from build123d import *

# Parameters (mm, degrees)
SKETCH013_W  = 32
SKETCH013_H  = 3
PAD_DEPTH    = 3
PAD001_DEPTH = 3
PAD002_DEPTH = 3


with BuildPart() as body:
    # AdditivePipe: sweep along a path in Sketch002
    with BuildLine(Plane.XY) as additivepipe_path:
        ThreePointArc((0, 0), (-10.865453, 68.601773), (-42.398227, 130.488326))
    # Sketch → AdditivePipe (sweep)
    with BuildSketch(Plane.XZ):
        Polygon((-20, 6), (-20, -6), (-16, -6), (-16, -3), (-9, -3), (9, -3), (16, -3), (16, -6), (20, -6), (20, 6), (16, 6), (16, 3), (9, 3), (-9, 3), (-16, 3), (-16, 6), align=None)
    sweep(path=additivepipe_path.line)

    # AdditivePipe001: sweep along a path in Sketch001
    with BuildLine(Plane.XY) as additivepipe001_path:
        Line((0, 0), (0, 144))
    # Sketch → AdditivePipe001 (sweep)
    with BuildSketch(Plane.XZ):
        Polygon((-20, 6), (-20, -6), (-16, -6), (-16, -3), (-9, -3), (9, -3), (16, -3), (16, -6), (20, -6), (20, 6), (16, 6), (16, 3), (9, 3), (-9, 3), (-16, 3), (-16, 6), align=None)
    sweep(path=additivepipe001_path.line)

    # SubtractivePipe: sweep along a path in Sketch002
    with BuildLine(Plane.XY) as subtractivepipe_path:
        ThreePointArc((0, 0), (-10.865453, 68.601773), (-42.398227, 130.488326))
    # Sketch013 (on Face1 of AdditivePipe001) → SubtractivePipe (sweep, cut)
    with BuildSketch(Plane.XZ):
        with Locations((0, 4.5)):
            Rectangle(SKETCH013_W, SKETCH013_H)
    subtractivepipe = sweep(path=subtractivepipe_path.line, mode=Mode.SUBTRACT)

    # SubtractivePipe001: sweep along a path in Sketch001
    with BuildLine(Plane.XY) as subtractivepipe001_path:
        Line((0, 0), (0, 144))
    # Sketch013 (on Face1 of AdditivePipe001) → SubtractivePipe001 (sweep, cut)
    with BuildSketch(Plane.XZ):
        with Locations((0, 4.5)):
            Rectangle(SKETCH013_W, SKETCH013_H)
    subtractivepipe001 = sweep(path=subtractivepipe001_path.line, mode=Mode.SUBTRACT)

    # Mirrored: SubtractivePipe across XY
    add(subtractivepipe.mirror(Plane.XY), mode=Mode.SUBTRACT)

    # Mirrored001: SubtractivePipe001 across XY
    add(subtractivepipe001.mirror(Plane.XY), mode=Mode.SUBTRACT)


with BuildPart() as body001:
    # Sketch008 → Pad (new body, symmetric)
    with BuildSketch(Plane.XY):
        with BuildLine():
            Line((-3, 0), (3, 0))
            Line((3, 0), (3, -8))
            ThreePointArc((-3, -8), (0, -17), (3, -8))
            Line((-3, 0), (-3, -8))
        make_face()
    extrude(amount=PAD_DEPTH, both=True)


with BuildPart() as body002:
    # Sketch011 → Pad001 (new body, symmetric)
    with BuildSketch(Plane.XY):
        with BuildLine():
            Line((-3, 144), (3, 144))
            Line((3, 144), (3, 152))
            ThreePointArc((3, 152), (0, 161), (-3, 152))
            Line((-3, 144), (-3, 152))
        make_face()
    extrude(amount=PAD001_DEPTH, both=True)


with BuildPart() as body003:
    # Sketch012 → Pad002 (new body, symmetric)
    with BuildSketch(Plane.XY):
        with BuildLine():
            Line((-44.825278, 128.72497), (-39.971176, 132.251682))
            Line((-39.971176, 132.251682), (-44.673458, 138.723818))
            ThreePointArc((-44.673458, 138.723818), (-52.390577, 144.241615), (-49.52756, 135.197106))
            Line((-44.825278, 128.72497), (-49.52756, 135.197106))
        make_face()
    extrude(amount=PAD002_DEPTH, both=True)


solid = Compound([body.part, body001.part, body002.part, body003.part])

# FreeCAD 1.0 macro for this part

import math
import FreeCAD as App
import Part
import Sketcher
from FreeCAD import Vector
Q = App.Units.Quantity

doc = App.newDocument("Part")
body = doc.addObject("PartDesign::Body", "Body")

sketch1 = doc.addObject("Sketcher::SketchObject", "Sketch")
body.addObject(sketch1)
sketch1.AttachmentSupport = (doc.XZ_Plane, [""])
sketch1.MapMode = "FlatFace"
sketch1.addGeometry(Part.LineSegment(Vector(-20, 6, 0), Vector(-20, -6, 0)), False)
sketch1.addGeometry(Part.LineSegment(Vector(-20, -6, 0), Vector(-16, -6, 0)), False)
sketch1.addGeometry(Part.LineSegment(Vector(-16, -6, 0), Vector(-16, -3, 0)), False)
sketch1.addGeometry(Part.LineSegment(Vector(-16, -3, 0), Vector(16, -3, 0)), False)
sketch1.addGeometry(Part.LineSegment(Vector(16, -3, 0), Vector(16, -6, 0)), False)
sketch1.addGeometry(Part.LineSegment(Vector(16, -6, 0), Vector(20, -6, 0)), False)
sketch1.addGeometry(Part.LineSegment(Vector(20, -6, 0), Vector(20, 6, 0)), False)
sketch1.addGeometry(Part.LineSegment(Vector(20, 6, 0), Vector(16, 6, 0)), False)
sketch1.addGeometry(Part.LineSegment(Vector(16, 6, 0), Vector(16, 3, 0)), False)
sketch1.addGeometry(Part.LineSegment(Vector(16, 3, 0), Vector(-16, 3, 0)), False)
sketch1.addGeometry(Part.LineSegment(Vector(-16, 3, 0), Vector(-16, 6, 0)), False)
sketch1.addGeometry(Part.LineSegment(Vector(-16, 6, 0), Vector(-20, 6, 0)), False)
sketch1.addConstraint(Sketcher.Constraint("Coincident", 0, 2, 1, 1))
sketch1.addConstraint(Sketcher.Constraint("Coincident", 1, 2, 2, 1))
sketch1.addConstraint(Sketcher.Constraint("Coincident", 2, 2, 3, 1))
sketch1.addConstraint(Sketcher.Constraint("Coincident", 3, 2, 4, 1))
sketch1.addConstraint(Sketcher.Constraint("Coincident", 4, 2, 5, 1))
sketch1.addConstraint(Sketcher.Constraint("Coincident", 5, 2, 6, 1))
sketch1.addConstraint(Sketcher.Constraint("Coincident", 6, 2, 7, 1))
sketch1.addConstraint(Sketcher.Constraint("Coincident", 7, 2, 8, 1))
sketch1.addConstraint(Sketcher.Constraint("Coincident", 8, 2, 9, 1))
sketch1.addConstraint(Sketcher.Constraint("Coincident", 9, 2, 10, 1))
sketch1.addConstraint(Sketcher.Constraint("Coincident", 10, 2, 11, 1))
sketch1.addConstraint(Sketcher.Constraint("Coincident", 11, 2, 0, 1))
sketch1.addConstraint(Sketcher.Constraint("Vertical", 0))
sketch1.addConstraint(Sketcher.Constraint("Horizontal", 1))
sketch1.addConstraint(Sketcher.Constraint("Vertical", 2))
sketch1.addConstraint(Sketcher.Constraint("Horizontal", 3))
sketch1.addConstraint(Sketcher.Constraint("Vertical", 4))
sketch1.addConstraint(Sketcher.Constraint("Horizontal", 5))
sketch1.addConstraint(Sketcher.Constraint("Vertical", 6))
sketch1.addConstraint(Sketcher.Constraint("Horizontal", 7))
sketch1.addConstraint(Sketcher.Constraint("Vertical", 8))
sketch1.addConstraint(Sketcher.Constraint("Horizontal", 9))
sketch1.addConstraint(Sketcher.Constraint("Vertical", 10))
sketch1.addConstraint(Sketcher.Constraint("Horizontal", 11))
sketch1.addConstraint(Sketcher.Constraint("Symmetric", 0, 2, 6, 2, -1, 1))
sketch1.addConstraint(Sketcher.Constraint("Symmetric", 2, 2, 8, 2, -1, 1))
sketch1.addConstraint(Sketcher.Constraint("Symmetric", 4, 2, 10, 2, -1, 1))
sketch1.addConstraint(Sketcher.Constraint("Symmetric", 1, 2, 4, 2, -2))
sketch1.addConstraint(Sketcher.Constraint("DistanceX", 1, 1, 1, 2, 4.0))
sketch1.addConstraint(Sketcher.Constraint("DistanceX", 3, 1, 3, 2, 32.0))
sketch1.addConstraint(Sketcher.Constraint("DistanceY", 0, 2, 0, 1, 12.0))
sketch1.addConstraint(Sketcher.Constraint("DistanceY", 2, 1, 2, 2, 3.0))

sketch2 = doc.addObject("Sketcher::SketchObject", "Sketch001")
body.addObject(sketch2)
sketch2.AttachmentSupport = (doc.XY_Plane, [""])
sketch2.MapMode = "FlatFace"
sketch2.addGeometry(Part.ArcOfCircle(Part.Circle(Vector(-221.999993, 0.000002, 0), Vector(0, 0, 1), 221.999993), math.radians(-0.000001), math.radians(36)), False)
sketch2.addConstraint(Sketcher.Constraint("Coincident", 0, 1, -1, 1))
sketch2.addConstraint(Sketcher.Constraint("Radius", 0, 221.999993))
sketch2.addConstraint(Sketcher.Constraint("DistanceX", 0, 2, -1, 1, 42.398227))
sketch2.addConstraint(Sketcher.Constraint("DistanceY", -1, 1, 0, 2, 130.488326))
doc.recompute()

additivepipe = doc.addObject("PartDesign::AdditivePipe", "AdditivePipe")
body.addObject(additivepipe)
additivepipe.Profile = sketch1
additivepipe.Spine = (sketch2, ["Edge1"])

sketch3 = doc.addObject("Sketcher::SketchObject", "Sketch002")
body.addObject(sketch3)
sketch3.AttachmentSupport = (doc.XZ_Plane, [""])
sketch3.MapMode = "FlatFace"
sketch3.addGeometry(Part.LineSegment(Vector(-20, 6, 0), Vector(-20, -6, 0)), False)
sketch3.addGeometry(Part.LineSegment(Vector(-20, -6, 0), Vector(-16, -6, 0)), False)
sketch3.addGeometry(Part.LineSegment(Vector(-16, -6, 0), Vector(-16, -3, 0)), False)
sketch3.addGeometry(Part.LineSegment(Vector(-16, -3, 0), Vector(16, -3, 0)), False)
sketch3.addGeometry(Part.LineSegment(Vector(16, -3, 0), Vector(16, -6, 0)), False)
sketch3.addGeometry(Part.LineSegment(Vector(16, -6, 0), Vector(20, -6, 0)), False)
sketch3.addGeometry(Part.LineSegment(Vector(20, -6, 0), Vector(20, 6, 0)), False)
sketch3.addGeometry(Part.LineSegment(Vector(20, 6, 0), Vector(16, 6, 0)), False)
sketch3.addGeometry(Part.LineSegment(Vector(16, 6, 0), Vector(16, 3, 0)), False)
sketch3.addGeometry(Part.LineSegment(Vector(16, 3, 0), Vector(-16, 3, 0)), False)
sketch3.addGeometry(Part.LineSegment(Vector(-16, 3, 0), Vector(-16, 6, 0)), False)
sketch3.addGeometry(Part.LineSegment(Vector(-16, 6, 0), Vector(-20, 6, 0)), False)
sketch3.addConstraint(Sketcher.Constraint("Coincident", 0, 2, 1, 1))
sketch3.addConstraint(Sketcher.Constraint("Coincident", 1, 2, 2, 1))
sketch3.addConstraint(Sketcher.Constraint("Coincident", 2, 2, 3, 1))
sketch3.addConstraint(Sketcher.Constraint("Coincident", 3, 2, 4, 1))
sketch3.addConstraint(Sketcher.Constraint("Coincident", 4, 2, 5, 1))
sketch3.addConstraint(Sketcher.Constraint("Coincident", 5, 2, 6, 1))
sketch3.addConstraint(Sketcher.Constraint("Coincident", 6, 2, 7, 1))
sketch3.addConstraint(Sketcher.Constraint("Coincident", 7, 2, 8, 1))
sketch3.addConstraint(Sketcher.Constraint("Coincident", 8, 2, 9, 1))
sketch3.addConstraint(Sketcher.Constraint("Coincident", 9, 2, 10, 1))
sketch3.addConstraint(Sketcher.Constraint("Coincident", 10, 2, 11, 1))
sketch3.addConstraint(Sketcher.Constraint("Coincident", 11, 2, 0, 1))
sketch3.addConstraint(Sketcher.Constraint("Vertical", 0))
sketch3.addConstraint(Sketcher.Constraint("Horizontal", 1))
sketch3.addConstraint(Sketcher.Constraint("Vertical", 2))
sketch3.addConstraint(Sketcher.Constraint("Horizontal", 3))
sketch3.addConstraint(Sketcher.Constraint("Vertical", 4))
sketch3.addConstraint(Sketcher.Constraint("Horizontal", 5))
sketch3.addConstraint(Sketcher.Constraint("Vertical", 6))
sketch3.addConstraint(Sketcher.Constraint("Horizontal", 7))
sketch3.addConstraint(Sketcher.Constraint("Vertical", 8))
sketch3.addConstraint(Sketcher.Constraint("Horizontal", 9))
sketch3.addConstraint(Sketcher.Constraint("Vertical", 10))
sketch3.addConstraint(Sketcher.Constraint("Horizontal", 11))
sketch3.addConstraint(Sketcher.Constraint("Symmetric", 0, 2, 6, 2, -1, 1))
sketch3.addConstraint(Sketcher.Constraint("Symmetric", 2, 2, 8, 2, -1, 1))
sketch3.addConstraint(Sketcher.Constraint("Symmetric", 4, 2, 10, 2, -1, 1))
sketch3.addConstraint(Sketcher.Constraint("Symmetric", 1, 2, 4, 2, -2))
sketch3.addConstraint(Sketcher.Constraint("DistanceX", 1, 1, 1, 2, 4.0))
sketch3.addConstraint(Sketcher.Constraint("DistanceX", 3, 1, 3, 2, 32.0))
sketch3.addConstraint(Sketcher.Constraint("DistanceY", 0, 2, 0, 1, 12.0))
sketch3.addConstraint(Sketcher.Constraint("DistanceY", 2, 1, 2, 2, 3.0))

sketch4 = doc.addObject("Sketcher::SketchObject", "Sketch003")
body.addObject(sketch4)
sketch4.AttachmentSupport = (doc.XY_Plane, [""])
sketch4.MapMode = "FlatFace"
sketch4.addGeometry(Part.LineSegment(Vector(0, 0, 0), Vector(0, 144, 0)), False)
sketch4.addConstraint(Sketcher.Constraint("Vertical", 0))
sketch4.addConstraint(Sketcher.Constraint("Coincident", 0, 1, -1, 1))
sketch4.addConstraint(Sketcher.Constraint("DistanceY", 0, 1, 0, 2, 144.0))
doc.recompute()

additivepipe2 = doc.addObject("PartDesign::AdditivePipe", "AdditivePipe001")
body.addObject(additivepipe2)
additivepipe2.Profile = sketch3
additivepipe2.Spine = (sketch4, ["Edge1"])

sketch5 = doc.addObject("Sketcher::SketchObject", "Sketch004")
body.addObject(sketch5)
sketch5.AttachmentSupport = (doc.XZ_Plane, [""])
sketch5.MapMode = "FlatFace"
sketch5.addGeometry(Part.LineSegment(Vector(-16, 6, 0), Vector(-16, 3, 0)), False)
sketch5.addGeometry(Part.LineSegment(Vector(-16, 3, 0), Vector(16, 3, 0)), False)
sketch5.addGeometry(Part.LineSegment(Vector(16, 3, 0), Vector(16, 6, 0)), False)
sketch5.addGeometry(Part.LineSegment(Vector(16, 6, 0), Vector(-16, 6, 0)), False)
sketch5.addConstraint(Sketcher.Constraint("Coincident", 0, 2, 1, 1))
sketch5.addConstraint(Sketcher.Constraint("Coincident", 1, 2, 2, 1))
sketch5.addConstraint(Sketcher.Constraint("Coincident", 2, 2, 3, 1))
sketch5.addConstraint(Sketcher.Constraint("Coincident", 3, 2, 0, 1))
sketch5.addConstraint(Sketcher.Constraint("Vertical", 0))
sketch5.addConstraint(Sketcher.Constraint("Horizontal", 1))
sketch5.addConstraint(Sketcher.Constraint("Vertical", 2))
sketch5.addConstraint(Sketcher.Constraint("Horizontal", 3))
sketch5.addConstraint(Sketcher.Constraint("DistanceX", 1, 1, 1, 2, 32.0))
sketch5.addConstraint(Sketcher.Constraint("DistanceY", 0, 2, 0, 1, 3.0))
sketch5.addConstraint(Sketcher.Constraint("DistanceX", 0, 2, -1, 1, 16.0))
sketch5.addConstraint(Sketcher.Constraint("DistanceY", -1, 1, 0, 2, 3.0))

sketch6 = doc.addObject("Sketcher::SketchObject", "Sketch005")
body.addObject(sketch6)
sketch6.AttachmentSupport = (doc.XY_Plane, [""])
sketch6.MapMode = "FlatFace"
sketch6.addGeometry(Part.ArcOfCircle(Part.Circle(Vector(-221.999993, 0.000002, 0), Vector(0, 0, 1), 221.999993), math.radians(-0.000001), math.radians(36)), False)
sketch6.addConstraint(Sketcher.Constraint("Coincident", 0, 1, -1, 1))
sketch6.addConstraint(Sketcher.Constraint("Radius", 0, 221.999993))
sketch6.addConstraint(Sketcher.Constraint("DistanceX", 0, 2, -1, 1, 42.398227))
sketch6.addConstraint(Sketcher.Constraint("DistanceY", -1, 1, 0, 2, 130.488326))
doc.recompute()

subtractivepipe = doc.addObject("PartDesign::SubtractivePipe", "SubtractivePipe")
body.addObject(subtractivepipe)
subtractivepipe.Profile = sketch5
subtractivepipe.Spine = (sketch6, ["Edge1"])

sketch7 = doc.addObject("Sketcher::SketchObject", "Sketch006")
body.addObject(sketch7)
sketch7.AttachmentSupport = (doc.XZ_Plane, [""])
sketch7.MapMode = "FlatFace"
sketch7.addGeometry(Part.LineSegment(Vector(-16, 6, 0), Vector(-16, 3, 0)), False)
sketch7.addGeometry(Part.LineSegment(Vector(-16, 3, 0), Vector(16, 3, 0)), False)
sketch7.addGeometry(Part.LineSegment(Vector(16, 3, 0), Vector(16, 6, 0)), False)
sketch7.addGeometry(Part.LineSegment(Vector(16, 6, 0), Vector(-16, 6, 0)), False)
sketch7.addConstraint(Sketcher.Constraint("Coincident", 0, 2, 1, 1))
sketch7.addConstraint(Sketcher.Constraint("Coincident", 1, 2, 2, 1))
sketch7.addConstraint(Sketcher.Constraint("Coincident", 2, 2, 3, 1))
sketch7.addConstraint(Sketcher.Constraint("Coincident", 3, 2, 0, 1))
sketch7.addConstraint(Sketcher.Constraint("Vertical", 0))
sketch7.addConstraint(Sketcher.Constraint("Horizontal", 1))
sketch7.addConstraint(Sketcher.Constraint("Vertical", 2))
sketch7.addConstraint(Sketcher.Constraint("Horizontal", 3))
sketch7.addConstraint(Sketcher.Constraint("DistanceX", 1, 1, 1, 2, 32.0))
sketch7.addConstraint(Sketcher.Constraint("DistanceY", 0, 2, 0, 1, 3.0))
sketch7.addConstraint(Sketcher.Constraint("DistanceX", 0, 2, -1, 1, 16.0))
sketch7.addConstraint(Sketcher.Constraint("DistanceY", -1, 1, 0, 2, 3.0))

sketch8 = doc.addObject("Sketcher::SketchObject", "Sketch007")
body.addObject(sketch8)
sketch8.AttachmentSupport = (doc.XY_Plane, [""])
sketch8.MapMode = "FlatFace"
sketch8.addGeometry(Part.LineSegment(Vector(0, 0, 0), Vector(0, 144, 0)), False)
sketch8.addConstraint(Sketcher.Constraint("Vertical", 0))
sketch8.addConstraint(Sketcher.Constraint("Coincident", 0, 1, -1, 1))
sketch8.addConstraint(Sketcher.Constraint("DistanceY", 0, 1, 0, 2, 144.0))
doc.recompute()

subtractivepipe2 = doc.addObject("PartDesign::SubtractivePipe", "SubtractivePipe001")
body.addObject(subtractivepipe2)
subtractivepipe2.Profile = sketch7
subtractivepipe2.Spine = (sketch8, ["Edge1"])
doc.recompute()

mirrored = doc.addObject("PartDesign::Mirrored", "Mirrored")
body.addObject(mirrored)
mirrored.Originals = [subtractivepipe]
mirrored.MirrorPlane = (doc.XY_Plane, [""])
body.Tip = mirrored
doc.recompute()

mirrored2 = doc.addObject("PartDesign::Mirrored", "Mirrored001")
body.addObject(mirrored2)
mirrored2.Originals = [subtractivepipe2]
mirrored2.MirrorPlane = (doc.XY_Plane, [""])
body.Tip = mirrored2
body2 = doc.addObject("PartDesign::Body", "Body001")

sketch9 = doc.addObject("Sketcher::SketchObject", "Sketch008")
body2.addObject(sketch9)
sketch9.AttachmentSupport = (doc.getObject("XY_Plane001"), [""])
sketch9.MapMode = "FlatFace"
sketch9.addGeometry(Part.LineSegment(Vector(3, 0, 0), Vector(-3, 0, 0)), False)
sketch9.addGeometry(Part.LineSegment(Vector(-3, 0, 0), Vector(-3, -8, 0)), False)
sketch9.addGeometry(Part.ArcOfCircle(Part.Circle(Vector(0, -12, 0), Vector(0, 0, 1), 5), math.radians(126.869898), math.radians(413.130102)), False)
sketch9.addGeometry(Part.LineSegment(Vector(3, -8, 0), Vector(3, 0, 0)), False)
sketch9.addConstraint(Sketcher.Constraint("Coincident", 0, 2, 1, 1))
sketch9.addConstraint(Sketcher.Constraint("Coincident", 1, 2, 2, 1))
sketch9.addConstraint(Sketcher.Constraint("Coincident", 2, 2, 3, 1))
sketch9.addConstraint(Sketcher.Constraint("Coincident", 3, 2, 0, 1))
sketch9.addConstraint(Sketcher.Constraint("Horizontal", 0))
sketch9.addConstraint(Sketcher.Constraint("Vertical", 1))
sketch9.addConstraint(Sketcher.Constraint("Vertical", 3))
sketch9.addConstraint(Sketcher.Constraint("Symmetric", 0, 2, 3, 2, -1, 1))
sketch9.addConstraint(Sketcher.Constraint("PointOnObject", 2, 3, -2))
sketch9.addConstraint(Sketcher.Constraint("Radius", 2, 5.0))
sketch9.addConstraint(Sketcher.Constraint("DistanceX", 0, 2, 0, 1, 6.0))
sketch9.addConstraint(Sketcher.Constraint("DistanceY", 1, 2, 1, 1, 8.0))
pad1 = doc.addObject("PartDesign::Pad", "Pad")
body2.addObject(pad1)
pad1.Profile = sketch9
pad1.Length = 6
pad1.Midplane = True
body3 = doc.addObject("PartDesign::Body", "Body002")

sketch10 = doc.addObject("Sketcher::SketchObject", "Sketch009")
body3.addObject(sketch10)
sketch10.AttachmentSupport = (doc.getObject("XY_Plane002"), [""])
sketch10.MapMode = "FlatFace"
sketch10.addGeometry(Part.LineSegment(Vector(-3, 144, 0), Vector(3, 144, 0)), False)
sketch10.addGeometry(Part.LineSegment(Vector(3, 144, 0), Vector(3, 152, 0)), False)
sketch10.addGeometry(Part.ArcOfCircle(Part.Circle(Vector(0, 156, 0), Vector(0, 0, 1), 5), math.radians(-53.130102), math.radians(233.130102)), False)
sketch10.addGeometry(Part.LineSegment(Vector(-3, 152, 0), Vector(-3, 144, 0)), False)
sketch10.addConstraint(Sketcher.Constraint("Coincident", 0, 2, 1, 1))
sketch10.addConstraint(Sketcher.Constraint("Coincident", 1, 2, 2, 1))
sketch10.addConstraint(Sketcher.Constraint("Coincident", 2, 2, 3, 1))
sketch10.addConstraint(Sketcher.Constraint("Coincident", 3, 2, 0, 1))
sketch10.addConstraint(Sketcher.Constraint("Horizontal", 0))
sketch10.addConstraint(Sketcher.Constraint("Vertical", 1))
sketch10.addConstraint(Sketcher.Constraint("Vertical", 3))
sketch10.addConstraint(Sketcher.Constraint("Symmetric", 1, 2, 2, 2, -2))
sketch10.addConstraint(Sketcher.Constraint("Radius", 2, 5.0))
sketch10.addConstraint(Sketcher.Constraint("DistanceX", 0, 1, 0, 2, 6.0))
sketch10.addConstraint(Sketcher.Constraint("DistanceY", 1, 1, 1, 2, 8.0))
sketch10.addConstraint(Sketcher.Constraint("DistanceY", -1, 1, 2, 3, 156.0))
pad2 = doc.addObject("PartDesign::Pad", "Pad001")
body3.addObject(pad2)
pad2.Profile = sketch10
pad2.Length = 6
pad2.Midplane = True
body4 = doc.addObject("PartDesign::Body", "Body003")

sketch11 = doc.addObject("Sketcher::SketchObject", "Sketch010")
body4.addObject(sketch11)
sketch11.AttachmentSupport = (doc.getObject("XY_Plane003"), [""])
sketch11.MapMode = "FlatFace"
sketch11.addGeometry(Part.LineSegment(Vector(-44.825278, 128.72497, 0), Vector(-39.971176, 132.251682, 0)), False)
sketch11.addGeometry(Part.LineSegment(Vector(-39.971176, 132.251682, 0), Vector(-44.673458, 138.723818, 0)), False)
sketch11.addGeometry(Part.ArcOfCircle(Part.Circle(Vector(-49.45165, 140.19653, 0), Vector(0, 0, 1), 5), math.radians(-17.130099), math.radians(269.130106)), False)
sketch11.addGeometry(Part.LineSegment(Vector(-49.52756, 135.197106, 0), Vector(-44.825278, 128.72497, 0)), False)
sketch11.addConstraint(Sketcher.Constraint("Coincident", 0, 2, 1, 1))
sketch11.addConstraint(Sketcher.Constraint("Coincident", 1, 2, 2, 1))
sketch11.addConstraint(Sketcher.Constraint("Coincident", 2, 2, 3, 1))
sketch11.addConstraint(Sketcher.Constraint("Coincident", 3, 2, 0, 1))
sketch11.addConstraint(Sketcher.Constraint("Perpendicular", 0, 1))
sketch11.addConstraint(Sketcher.Constraint("Parallel", 1, 3))
sketch11.addConstraint(Sketcher.Constraint("Equal", 1, 3))
sketch11.addConstraint(Sketcher.Constraint("Radius", 2, 5.0))
sketch11.addConstraint(Sketcher.Constraint("Angle", 0, Q("36.000004 deg")))
sketch11.addConstraint(Sketcher.Constraint("Distance", 0, 6.0))
sketch11.addConstraint(Sketcher.Constraint("Distance", 1, 8.0))
sketch11.addConstraint(Sketcher.Constraint("DistanceX", 2, 3, -1, 1, 49.45165))
sketch11.addConstraint(Sketcher.Constraint("DistanceY", -1, 1, 2, 3, 140.19653))
pad3 = doc.addObject("PartDesign::Pad", "Pad002")
body4.addObject(pad3)
pad3.Profile = sketch11
pad3.Length = 6
pad3.Midplane = True

doc.recompute()
